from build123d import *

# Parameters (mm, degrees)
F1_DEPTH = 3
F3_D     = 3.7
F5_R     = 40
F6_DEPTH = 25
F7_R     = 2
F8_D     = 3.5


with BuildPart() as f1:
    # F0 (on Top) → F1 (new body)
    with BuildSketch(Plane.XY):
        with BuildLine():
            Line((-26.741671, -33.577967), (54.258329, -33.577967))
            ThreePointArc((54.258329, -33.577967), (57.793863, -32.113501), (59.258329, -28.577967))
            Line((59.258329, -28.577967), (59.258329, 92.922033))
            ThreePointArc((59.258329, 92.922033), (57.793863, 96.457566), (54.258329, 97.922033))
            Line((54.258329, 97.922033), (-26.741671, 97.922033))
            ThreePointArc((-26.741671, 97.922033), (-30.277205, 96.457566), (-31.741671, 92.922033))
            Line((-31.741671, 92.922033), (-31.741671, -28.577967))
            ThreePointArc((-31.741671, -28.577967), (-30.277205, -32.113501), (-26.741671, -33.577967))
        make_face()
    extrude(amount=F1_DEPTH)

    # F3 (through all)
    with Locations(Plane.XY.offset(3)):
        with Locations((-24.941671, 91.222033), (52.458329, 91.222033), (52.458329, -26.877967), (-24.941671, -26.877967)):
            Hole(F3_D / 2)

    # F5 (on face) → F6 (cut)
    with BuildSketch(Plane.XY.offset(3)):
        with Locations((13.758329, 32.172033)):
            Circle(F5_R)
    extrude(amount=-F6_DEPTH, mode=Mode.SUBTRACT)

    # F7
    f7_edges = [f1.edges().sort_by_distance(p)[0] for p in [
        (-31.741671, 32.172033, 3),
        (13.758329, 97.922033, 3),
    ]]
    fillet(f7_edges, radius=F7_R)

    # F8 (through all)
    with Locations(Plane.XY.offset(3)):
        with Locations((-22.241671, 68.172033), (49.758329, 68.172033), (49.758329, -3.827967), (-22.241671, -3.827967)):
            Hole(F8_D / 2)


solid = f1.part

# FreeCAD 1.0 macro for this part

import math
import FreeCAD as App
import Part
import Sketcher

V = App.Vector


def edges_at(feature, points):
    """Names of the edges that pass closest to the given points."""
    edges = feature.Shape.Edges
    near = lambda p: min(range(len(edges)), key=lambda i: edges[i].distToShape(Part.Vertex(*p))[0])
    return sorted({f"Edge{near(p) + 1}" for p in points})

doc = App.newDocument("Part")
body = doc.addObject("PartDesign::Body", "Body")

sketch1 = doc.addObject("Sketcher::SketchObject", "Sketch")
body.addObject(sketch1)
sketch1.AttachmentSupport = (doc.XY_Plane, [""])
sketch1.MapMode = "FlatFace"
sketch1.addGeometry([
    Part.LineSegment(V(-26.7, -33.6, 0), V(54.3, -33.6, 0)),
    Part.ArcOfCircle(Part.Circle(V(54.3, -28.6, 0), V(0, 0, 1), 5), math.radians(-90), math.radians(0)),
    Part.LineSegment(V(59.3, -28.6, 0), V(59.3, 92.9, 0)),
    Part.ArcOfCircle(Part.Circle(V(54.3, 92.9, 0), V(0, 0, 1), 5), math.radians(0), math.radians(90)),
    Part.LineSegment(V(54.3, 97.9, 0), V(-26.7, 97.9, 0)),
    Part.ArcOfCircle(Part.Circle(V(-26.7, 92.9, 0), V(0, 0, 1), 5), math.radians(90), math.radians(180)),
    Part.LineSegment(V(-31.7, 92.9, 0), V(-31.7, -28.6, 0)),
    Part.ArcOfCircle(Part.Circle(V(-26.7, -28.6, 0), V(0, 0, 1), 5), math.radians(180), math.radians(270)),
], False)
sketch1.addConstraint([
    Sketcher.Constraint("Tangent", 0, 2, 1, 1),
    Sketcher.Constraint("Tangent", 1, 2, 2, 1),
    Sketcher.Constraint("Tangent", 2, 2, 3, 1),
    Sketcher.Constraint("Tangent", 3, 2, 4, 1),
    Sketcher.Constraint("Tangent", 4, 2, 5, 1),
    Sketcher.Constraint("Tangent", 5, 2, 6, 1),
    Sketcher.Constraint("Tangent", 6, 2, 7, 1),
    Sketcher.Constraint("Tangent", 7, 2, 0, 1),
    Sketcher.Constraint("Horizontal", 0),
    Sketcher.Constraint("Vertical", 2),
    Sketcher.Constraint("Horizontal", 4),
    Sketcher.Constraint("Vertical", 6),
    Sketcher.Constraint("Equal", 1, 3),
    Sketcher.Constraint("Equal", 3, 5),
    Sketcher.Constraint("Equal", 5, 7),
    Sketcher.Constraint("Radius", 1, 5.0),
    Sketcher.Constraint("DistanceX", 0, 1, 0, 2, 81.0),
    Sketcher.Constraint("DistanceY", 2, 1, 2, 2, 121.5),
    Sketcher.Constraint("DistanceX", -1, 1, 1, 3, 54.258329),
    Sketcher.Constraint("DistanceY", -1, 1, 3, 3, 92.922032),
])
pad1 = doc.addObject("PartDesign::Pad", "Pad")
body.addObject(pad1)
pad1.Profile = sketch1
pad1.Length = 3

sketch2 = doc.addObject("Sketcher::SketchObject", "Sketch001")
body.addObject(sketch2)
sketch2.AttachmentSupport = (doc.XY_Plane, [""])
sketch2.MapMode = "FlatFace"
sketch2.AttachmentOffset = App.Placement(V(0, 0, 3), App.Rotation())
sketch2.addGeometry([
    Part.Circle(V(-24.9, 91.2, 0), V(0, 0, 1), 1.9),
    Part.Circle(V(52.5, 91.2, 0), V(0, 0, 1), 1.9),
    Part.Circle(V(52.5, -26.9, 0), V(0, 0, 1), 1.9),
    Part.Circle(V(-24.9, -26.9, 0), V(0, 0, 1), 1.9),
], False)
sketch2.addConstraint([
    Sketcher.Constraint("Equal", 0, 1),
    Sketcher.Constraint("Equal", 1, 2),
    Sketcher.Constraint("Equal", 2, 3),
    Sketcher.Constraint("Horizontal", 0, 3, 1, 3),
    Sketcher.Constraint("Horizontal", 2, 3, 3, 3),
    Sketcher.Constraint("Vertical", 1, 3, 2, 3),
    Sketcher.Constraint("Vertical", 0, 3, 3, 3),
    Sketcher.Constraint("Diameter", 0, 3.7),
    Sketcher.Constraint("DistanceX", 0, 3, 1, 3, 77.4),
    Sketcher.Constraint("DistanceY", 2, 3, 1, 3, 118.1),
    Sketcher.Constraint("DistanceX", 0, 3, -1, 1, 24.941671),
    Sketcher.Constraint("DistanceY", -1, 1, 0, 3, 91.222033),
])
doc.recompute()
hole = doc.addObject("PartDesign::Hole", "Hole")
body.addObject(hole)
hole.Profile = sketch2
hole.ThreadType = "None"
hole.Diameter = 3.7
hole.DepthType = "ThroughAll"

sketch3 = doc.addObject("Sketcher::SketchObject", "Sketch002")
body.addObject(sketch3)
sketch3.AttachmentSupport = (doc.XY_Plane, [""])
sketch3.MapMode = "FlatFace"
sketch3.AttachmentOffset = App.Placement(V(0, 0, 3), App.Rotation())
sketch3.addGeometry(Part.Circle(V(14, 32, 0), V(0, 0, 1), 40), False)
sketch3.addConstraint([
    Sketcher.Constraint("Diameter", 0, 80.0),
    Sketcher.Constraint("DistanceX", -1, 1, 0, 3, 13.758329),
    Sketcher.Constraint("DistanceY", -1, 1, 0, 3, 32.172033),
])
pocket1 = doc.addObject("PartDesign::Pocket", "Pocket")
body.addObject(pocket1)
pocket1.Profile = sketch3
pocket1.Length = 25
doc.recompute()

fillet = doc.addObject("PartDesign::Fillet", "Fillet")
body.addObject(fillet)
fillet.Base = (pocket1, edges_at(pocket1, [(-31.742, 32.172, 3), (13.758, 97.922, 3)]))
fillet.Radius = 2

sketch4 = doc.addObject("Sketcher::SketchObject", "Sketch003")
body.addObject(sketch4)
sketch4.AttachmentSupport = (doc.XY_Plane, [""])
sketch4.MapMode = "FlatFace"
sketch4.AttachmentOffset = App.Placement(V(0, 0, 3), App.Rotation())
sketch4.addGeometry([
    Part.Circle(V(-22.2, 68.2, 0), V(0, 0, 1), 1.8),
    Part.Circle(V(49.8, 68.2, 0), V(0, 0, 1), 1.8),
    Part.Circle(V(49.8, -3.8, 0), V(0, 0, 1), 1.8),
    Part.Circle(V(-22.2, -3.8, 0), V(0, 0, 1), 1.8),
], False)
sketch4.addConstraint([
    Sketcher.Constraint("Equal", 0, 1),
    Sketcher.Constraint("Equal", 1, 2),
    Sketcher.Constraint("Equal", 2, 3),
    Sketcher.Constraint("Horizontal", 0, 3, 1, 3),
    Sketcher.Constraint("Horizontal", 2, 3, 3, 3),
    Sketcher.Constraint("Vertical", 1, 3, 2, 3),
    Sketcher.Constraint("Vertical", 0, 3, 3, 3),
    Sketcher.Constraint("Diameter", 0, 3.5),
    Sketcher.Constraint("DistanceX", 0, 3, 1, 3, 72.0),
    Sketcher.Constraint("DistanceY", 2, 3, 1, 3, 72.0),
    Sketcher.Constraint("DistanceX", 0, 3, -1, 1, 22.241671),
    Sketcher.Constraint("DistanceY", -1, 1, 0, 3, 68.172033),
])
doc.recompute()
hole2 = doc.addObject("PartDesign::Hole", "Hole001")
body.addObject(hole2)
hole2.Profile = sketch4
hole2.ThreadType = "None"
hole2.Diameter = 3.5
hole2.DepthType = "ThroughAll"

doc.recompute()
